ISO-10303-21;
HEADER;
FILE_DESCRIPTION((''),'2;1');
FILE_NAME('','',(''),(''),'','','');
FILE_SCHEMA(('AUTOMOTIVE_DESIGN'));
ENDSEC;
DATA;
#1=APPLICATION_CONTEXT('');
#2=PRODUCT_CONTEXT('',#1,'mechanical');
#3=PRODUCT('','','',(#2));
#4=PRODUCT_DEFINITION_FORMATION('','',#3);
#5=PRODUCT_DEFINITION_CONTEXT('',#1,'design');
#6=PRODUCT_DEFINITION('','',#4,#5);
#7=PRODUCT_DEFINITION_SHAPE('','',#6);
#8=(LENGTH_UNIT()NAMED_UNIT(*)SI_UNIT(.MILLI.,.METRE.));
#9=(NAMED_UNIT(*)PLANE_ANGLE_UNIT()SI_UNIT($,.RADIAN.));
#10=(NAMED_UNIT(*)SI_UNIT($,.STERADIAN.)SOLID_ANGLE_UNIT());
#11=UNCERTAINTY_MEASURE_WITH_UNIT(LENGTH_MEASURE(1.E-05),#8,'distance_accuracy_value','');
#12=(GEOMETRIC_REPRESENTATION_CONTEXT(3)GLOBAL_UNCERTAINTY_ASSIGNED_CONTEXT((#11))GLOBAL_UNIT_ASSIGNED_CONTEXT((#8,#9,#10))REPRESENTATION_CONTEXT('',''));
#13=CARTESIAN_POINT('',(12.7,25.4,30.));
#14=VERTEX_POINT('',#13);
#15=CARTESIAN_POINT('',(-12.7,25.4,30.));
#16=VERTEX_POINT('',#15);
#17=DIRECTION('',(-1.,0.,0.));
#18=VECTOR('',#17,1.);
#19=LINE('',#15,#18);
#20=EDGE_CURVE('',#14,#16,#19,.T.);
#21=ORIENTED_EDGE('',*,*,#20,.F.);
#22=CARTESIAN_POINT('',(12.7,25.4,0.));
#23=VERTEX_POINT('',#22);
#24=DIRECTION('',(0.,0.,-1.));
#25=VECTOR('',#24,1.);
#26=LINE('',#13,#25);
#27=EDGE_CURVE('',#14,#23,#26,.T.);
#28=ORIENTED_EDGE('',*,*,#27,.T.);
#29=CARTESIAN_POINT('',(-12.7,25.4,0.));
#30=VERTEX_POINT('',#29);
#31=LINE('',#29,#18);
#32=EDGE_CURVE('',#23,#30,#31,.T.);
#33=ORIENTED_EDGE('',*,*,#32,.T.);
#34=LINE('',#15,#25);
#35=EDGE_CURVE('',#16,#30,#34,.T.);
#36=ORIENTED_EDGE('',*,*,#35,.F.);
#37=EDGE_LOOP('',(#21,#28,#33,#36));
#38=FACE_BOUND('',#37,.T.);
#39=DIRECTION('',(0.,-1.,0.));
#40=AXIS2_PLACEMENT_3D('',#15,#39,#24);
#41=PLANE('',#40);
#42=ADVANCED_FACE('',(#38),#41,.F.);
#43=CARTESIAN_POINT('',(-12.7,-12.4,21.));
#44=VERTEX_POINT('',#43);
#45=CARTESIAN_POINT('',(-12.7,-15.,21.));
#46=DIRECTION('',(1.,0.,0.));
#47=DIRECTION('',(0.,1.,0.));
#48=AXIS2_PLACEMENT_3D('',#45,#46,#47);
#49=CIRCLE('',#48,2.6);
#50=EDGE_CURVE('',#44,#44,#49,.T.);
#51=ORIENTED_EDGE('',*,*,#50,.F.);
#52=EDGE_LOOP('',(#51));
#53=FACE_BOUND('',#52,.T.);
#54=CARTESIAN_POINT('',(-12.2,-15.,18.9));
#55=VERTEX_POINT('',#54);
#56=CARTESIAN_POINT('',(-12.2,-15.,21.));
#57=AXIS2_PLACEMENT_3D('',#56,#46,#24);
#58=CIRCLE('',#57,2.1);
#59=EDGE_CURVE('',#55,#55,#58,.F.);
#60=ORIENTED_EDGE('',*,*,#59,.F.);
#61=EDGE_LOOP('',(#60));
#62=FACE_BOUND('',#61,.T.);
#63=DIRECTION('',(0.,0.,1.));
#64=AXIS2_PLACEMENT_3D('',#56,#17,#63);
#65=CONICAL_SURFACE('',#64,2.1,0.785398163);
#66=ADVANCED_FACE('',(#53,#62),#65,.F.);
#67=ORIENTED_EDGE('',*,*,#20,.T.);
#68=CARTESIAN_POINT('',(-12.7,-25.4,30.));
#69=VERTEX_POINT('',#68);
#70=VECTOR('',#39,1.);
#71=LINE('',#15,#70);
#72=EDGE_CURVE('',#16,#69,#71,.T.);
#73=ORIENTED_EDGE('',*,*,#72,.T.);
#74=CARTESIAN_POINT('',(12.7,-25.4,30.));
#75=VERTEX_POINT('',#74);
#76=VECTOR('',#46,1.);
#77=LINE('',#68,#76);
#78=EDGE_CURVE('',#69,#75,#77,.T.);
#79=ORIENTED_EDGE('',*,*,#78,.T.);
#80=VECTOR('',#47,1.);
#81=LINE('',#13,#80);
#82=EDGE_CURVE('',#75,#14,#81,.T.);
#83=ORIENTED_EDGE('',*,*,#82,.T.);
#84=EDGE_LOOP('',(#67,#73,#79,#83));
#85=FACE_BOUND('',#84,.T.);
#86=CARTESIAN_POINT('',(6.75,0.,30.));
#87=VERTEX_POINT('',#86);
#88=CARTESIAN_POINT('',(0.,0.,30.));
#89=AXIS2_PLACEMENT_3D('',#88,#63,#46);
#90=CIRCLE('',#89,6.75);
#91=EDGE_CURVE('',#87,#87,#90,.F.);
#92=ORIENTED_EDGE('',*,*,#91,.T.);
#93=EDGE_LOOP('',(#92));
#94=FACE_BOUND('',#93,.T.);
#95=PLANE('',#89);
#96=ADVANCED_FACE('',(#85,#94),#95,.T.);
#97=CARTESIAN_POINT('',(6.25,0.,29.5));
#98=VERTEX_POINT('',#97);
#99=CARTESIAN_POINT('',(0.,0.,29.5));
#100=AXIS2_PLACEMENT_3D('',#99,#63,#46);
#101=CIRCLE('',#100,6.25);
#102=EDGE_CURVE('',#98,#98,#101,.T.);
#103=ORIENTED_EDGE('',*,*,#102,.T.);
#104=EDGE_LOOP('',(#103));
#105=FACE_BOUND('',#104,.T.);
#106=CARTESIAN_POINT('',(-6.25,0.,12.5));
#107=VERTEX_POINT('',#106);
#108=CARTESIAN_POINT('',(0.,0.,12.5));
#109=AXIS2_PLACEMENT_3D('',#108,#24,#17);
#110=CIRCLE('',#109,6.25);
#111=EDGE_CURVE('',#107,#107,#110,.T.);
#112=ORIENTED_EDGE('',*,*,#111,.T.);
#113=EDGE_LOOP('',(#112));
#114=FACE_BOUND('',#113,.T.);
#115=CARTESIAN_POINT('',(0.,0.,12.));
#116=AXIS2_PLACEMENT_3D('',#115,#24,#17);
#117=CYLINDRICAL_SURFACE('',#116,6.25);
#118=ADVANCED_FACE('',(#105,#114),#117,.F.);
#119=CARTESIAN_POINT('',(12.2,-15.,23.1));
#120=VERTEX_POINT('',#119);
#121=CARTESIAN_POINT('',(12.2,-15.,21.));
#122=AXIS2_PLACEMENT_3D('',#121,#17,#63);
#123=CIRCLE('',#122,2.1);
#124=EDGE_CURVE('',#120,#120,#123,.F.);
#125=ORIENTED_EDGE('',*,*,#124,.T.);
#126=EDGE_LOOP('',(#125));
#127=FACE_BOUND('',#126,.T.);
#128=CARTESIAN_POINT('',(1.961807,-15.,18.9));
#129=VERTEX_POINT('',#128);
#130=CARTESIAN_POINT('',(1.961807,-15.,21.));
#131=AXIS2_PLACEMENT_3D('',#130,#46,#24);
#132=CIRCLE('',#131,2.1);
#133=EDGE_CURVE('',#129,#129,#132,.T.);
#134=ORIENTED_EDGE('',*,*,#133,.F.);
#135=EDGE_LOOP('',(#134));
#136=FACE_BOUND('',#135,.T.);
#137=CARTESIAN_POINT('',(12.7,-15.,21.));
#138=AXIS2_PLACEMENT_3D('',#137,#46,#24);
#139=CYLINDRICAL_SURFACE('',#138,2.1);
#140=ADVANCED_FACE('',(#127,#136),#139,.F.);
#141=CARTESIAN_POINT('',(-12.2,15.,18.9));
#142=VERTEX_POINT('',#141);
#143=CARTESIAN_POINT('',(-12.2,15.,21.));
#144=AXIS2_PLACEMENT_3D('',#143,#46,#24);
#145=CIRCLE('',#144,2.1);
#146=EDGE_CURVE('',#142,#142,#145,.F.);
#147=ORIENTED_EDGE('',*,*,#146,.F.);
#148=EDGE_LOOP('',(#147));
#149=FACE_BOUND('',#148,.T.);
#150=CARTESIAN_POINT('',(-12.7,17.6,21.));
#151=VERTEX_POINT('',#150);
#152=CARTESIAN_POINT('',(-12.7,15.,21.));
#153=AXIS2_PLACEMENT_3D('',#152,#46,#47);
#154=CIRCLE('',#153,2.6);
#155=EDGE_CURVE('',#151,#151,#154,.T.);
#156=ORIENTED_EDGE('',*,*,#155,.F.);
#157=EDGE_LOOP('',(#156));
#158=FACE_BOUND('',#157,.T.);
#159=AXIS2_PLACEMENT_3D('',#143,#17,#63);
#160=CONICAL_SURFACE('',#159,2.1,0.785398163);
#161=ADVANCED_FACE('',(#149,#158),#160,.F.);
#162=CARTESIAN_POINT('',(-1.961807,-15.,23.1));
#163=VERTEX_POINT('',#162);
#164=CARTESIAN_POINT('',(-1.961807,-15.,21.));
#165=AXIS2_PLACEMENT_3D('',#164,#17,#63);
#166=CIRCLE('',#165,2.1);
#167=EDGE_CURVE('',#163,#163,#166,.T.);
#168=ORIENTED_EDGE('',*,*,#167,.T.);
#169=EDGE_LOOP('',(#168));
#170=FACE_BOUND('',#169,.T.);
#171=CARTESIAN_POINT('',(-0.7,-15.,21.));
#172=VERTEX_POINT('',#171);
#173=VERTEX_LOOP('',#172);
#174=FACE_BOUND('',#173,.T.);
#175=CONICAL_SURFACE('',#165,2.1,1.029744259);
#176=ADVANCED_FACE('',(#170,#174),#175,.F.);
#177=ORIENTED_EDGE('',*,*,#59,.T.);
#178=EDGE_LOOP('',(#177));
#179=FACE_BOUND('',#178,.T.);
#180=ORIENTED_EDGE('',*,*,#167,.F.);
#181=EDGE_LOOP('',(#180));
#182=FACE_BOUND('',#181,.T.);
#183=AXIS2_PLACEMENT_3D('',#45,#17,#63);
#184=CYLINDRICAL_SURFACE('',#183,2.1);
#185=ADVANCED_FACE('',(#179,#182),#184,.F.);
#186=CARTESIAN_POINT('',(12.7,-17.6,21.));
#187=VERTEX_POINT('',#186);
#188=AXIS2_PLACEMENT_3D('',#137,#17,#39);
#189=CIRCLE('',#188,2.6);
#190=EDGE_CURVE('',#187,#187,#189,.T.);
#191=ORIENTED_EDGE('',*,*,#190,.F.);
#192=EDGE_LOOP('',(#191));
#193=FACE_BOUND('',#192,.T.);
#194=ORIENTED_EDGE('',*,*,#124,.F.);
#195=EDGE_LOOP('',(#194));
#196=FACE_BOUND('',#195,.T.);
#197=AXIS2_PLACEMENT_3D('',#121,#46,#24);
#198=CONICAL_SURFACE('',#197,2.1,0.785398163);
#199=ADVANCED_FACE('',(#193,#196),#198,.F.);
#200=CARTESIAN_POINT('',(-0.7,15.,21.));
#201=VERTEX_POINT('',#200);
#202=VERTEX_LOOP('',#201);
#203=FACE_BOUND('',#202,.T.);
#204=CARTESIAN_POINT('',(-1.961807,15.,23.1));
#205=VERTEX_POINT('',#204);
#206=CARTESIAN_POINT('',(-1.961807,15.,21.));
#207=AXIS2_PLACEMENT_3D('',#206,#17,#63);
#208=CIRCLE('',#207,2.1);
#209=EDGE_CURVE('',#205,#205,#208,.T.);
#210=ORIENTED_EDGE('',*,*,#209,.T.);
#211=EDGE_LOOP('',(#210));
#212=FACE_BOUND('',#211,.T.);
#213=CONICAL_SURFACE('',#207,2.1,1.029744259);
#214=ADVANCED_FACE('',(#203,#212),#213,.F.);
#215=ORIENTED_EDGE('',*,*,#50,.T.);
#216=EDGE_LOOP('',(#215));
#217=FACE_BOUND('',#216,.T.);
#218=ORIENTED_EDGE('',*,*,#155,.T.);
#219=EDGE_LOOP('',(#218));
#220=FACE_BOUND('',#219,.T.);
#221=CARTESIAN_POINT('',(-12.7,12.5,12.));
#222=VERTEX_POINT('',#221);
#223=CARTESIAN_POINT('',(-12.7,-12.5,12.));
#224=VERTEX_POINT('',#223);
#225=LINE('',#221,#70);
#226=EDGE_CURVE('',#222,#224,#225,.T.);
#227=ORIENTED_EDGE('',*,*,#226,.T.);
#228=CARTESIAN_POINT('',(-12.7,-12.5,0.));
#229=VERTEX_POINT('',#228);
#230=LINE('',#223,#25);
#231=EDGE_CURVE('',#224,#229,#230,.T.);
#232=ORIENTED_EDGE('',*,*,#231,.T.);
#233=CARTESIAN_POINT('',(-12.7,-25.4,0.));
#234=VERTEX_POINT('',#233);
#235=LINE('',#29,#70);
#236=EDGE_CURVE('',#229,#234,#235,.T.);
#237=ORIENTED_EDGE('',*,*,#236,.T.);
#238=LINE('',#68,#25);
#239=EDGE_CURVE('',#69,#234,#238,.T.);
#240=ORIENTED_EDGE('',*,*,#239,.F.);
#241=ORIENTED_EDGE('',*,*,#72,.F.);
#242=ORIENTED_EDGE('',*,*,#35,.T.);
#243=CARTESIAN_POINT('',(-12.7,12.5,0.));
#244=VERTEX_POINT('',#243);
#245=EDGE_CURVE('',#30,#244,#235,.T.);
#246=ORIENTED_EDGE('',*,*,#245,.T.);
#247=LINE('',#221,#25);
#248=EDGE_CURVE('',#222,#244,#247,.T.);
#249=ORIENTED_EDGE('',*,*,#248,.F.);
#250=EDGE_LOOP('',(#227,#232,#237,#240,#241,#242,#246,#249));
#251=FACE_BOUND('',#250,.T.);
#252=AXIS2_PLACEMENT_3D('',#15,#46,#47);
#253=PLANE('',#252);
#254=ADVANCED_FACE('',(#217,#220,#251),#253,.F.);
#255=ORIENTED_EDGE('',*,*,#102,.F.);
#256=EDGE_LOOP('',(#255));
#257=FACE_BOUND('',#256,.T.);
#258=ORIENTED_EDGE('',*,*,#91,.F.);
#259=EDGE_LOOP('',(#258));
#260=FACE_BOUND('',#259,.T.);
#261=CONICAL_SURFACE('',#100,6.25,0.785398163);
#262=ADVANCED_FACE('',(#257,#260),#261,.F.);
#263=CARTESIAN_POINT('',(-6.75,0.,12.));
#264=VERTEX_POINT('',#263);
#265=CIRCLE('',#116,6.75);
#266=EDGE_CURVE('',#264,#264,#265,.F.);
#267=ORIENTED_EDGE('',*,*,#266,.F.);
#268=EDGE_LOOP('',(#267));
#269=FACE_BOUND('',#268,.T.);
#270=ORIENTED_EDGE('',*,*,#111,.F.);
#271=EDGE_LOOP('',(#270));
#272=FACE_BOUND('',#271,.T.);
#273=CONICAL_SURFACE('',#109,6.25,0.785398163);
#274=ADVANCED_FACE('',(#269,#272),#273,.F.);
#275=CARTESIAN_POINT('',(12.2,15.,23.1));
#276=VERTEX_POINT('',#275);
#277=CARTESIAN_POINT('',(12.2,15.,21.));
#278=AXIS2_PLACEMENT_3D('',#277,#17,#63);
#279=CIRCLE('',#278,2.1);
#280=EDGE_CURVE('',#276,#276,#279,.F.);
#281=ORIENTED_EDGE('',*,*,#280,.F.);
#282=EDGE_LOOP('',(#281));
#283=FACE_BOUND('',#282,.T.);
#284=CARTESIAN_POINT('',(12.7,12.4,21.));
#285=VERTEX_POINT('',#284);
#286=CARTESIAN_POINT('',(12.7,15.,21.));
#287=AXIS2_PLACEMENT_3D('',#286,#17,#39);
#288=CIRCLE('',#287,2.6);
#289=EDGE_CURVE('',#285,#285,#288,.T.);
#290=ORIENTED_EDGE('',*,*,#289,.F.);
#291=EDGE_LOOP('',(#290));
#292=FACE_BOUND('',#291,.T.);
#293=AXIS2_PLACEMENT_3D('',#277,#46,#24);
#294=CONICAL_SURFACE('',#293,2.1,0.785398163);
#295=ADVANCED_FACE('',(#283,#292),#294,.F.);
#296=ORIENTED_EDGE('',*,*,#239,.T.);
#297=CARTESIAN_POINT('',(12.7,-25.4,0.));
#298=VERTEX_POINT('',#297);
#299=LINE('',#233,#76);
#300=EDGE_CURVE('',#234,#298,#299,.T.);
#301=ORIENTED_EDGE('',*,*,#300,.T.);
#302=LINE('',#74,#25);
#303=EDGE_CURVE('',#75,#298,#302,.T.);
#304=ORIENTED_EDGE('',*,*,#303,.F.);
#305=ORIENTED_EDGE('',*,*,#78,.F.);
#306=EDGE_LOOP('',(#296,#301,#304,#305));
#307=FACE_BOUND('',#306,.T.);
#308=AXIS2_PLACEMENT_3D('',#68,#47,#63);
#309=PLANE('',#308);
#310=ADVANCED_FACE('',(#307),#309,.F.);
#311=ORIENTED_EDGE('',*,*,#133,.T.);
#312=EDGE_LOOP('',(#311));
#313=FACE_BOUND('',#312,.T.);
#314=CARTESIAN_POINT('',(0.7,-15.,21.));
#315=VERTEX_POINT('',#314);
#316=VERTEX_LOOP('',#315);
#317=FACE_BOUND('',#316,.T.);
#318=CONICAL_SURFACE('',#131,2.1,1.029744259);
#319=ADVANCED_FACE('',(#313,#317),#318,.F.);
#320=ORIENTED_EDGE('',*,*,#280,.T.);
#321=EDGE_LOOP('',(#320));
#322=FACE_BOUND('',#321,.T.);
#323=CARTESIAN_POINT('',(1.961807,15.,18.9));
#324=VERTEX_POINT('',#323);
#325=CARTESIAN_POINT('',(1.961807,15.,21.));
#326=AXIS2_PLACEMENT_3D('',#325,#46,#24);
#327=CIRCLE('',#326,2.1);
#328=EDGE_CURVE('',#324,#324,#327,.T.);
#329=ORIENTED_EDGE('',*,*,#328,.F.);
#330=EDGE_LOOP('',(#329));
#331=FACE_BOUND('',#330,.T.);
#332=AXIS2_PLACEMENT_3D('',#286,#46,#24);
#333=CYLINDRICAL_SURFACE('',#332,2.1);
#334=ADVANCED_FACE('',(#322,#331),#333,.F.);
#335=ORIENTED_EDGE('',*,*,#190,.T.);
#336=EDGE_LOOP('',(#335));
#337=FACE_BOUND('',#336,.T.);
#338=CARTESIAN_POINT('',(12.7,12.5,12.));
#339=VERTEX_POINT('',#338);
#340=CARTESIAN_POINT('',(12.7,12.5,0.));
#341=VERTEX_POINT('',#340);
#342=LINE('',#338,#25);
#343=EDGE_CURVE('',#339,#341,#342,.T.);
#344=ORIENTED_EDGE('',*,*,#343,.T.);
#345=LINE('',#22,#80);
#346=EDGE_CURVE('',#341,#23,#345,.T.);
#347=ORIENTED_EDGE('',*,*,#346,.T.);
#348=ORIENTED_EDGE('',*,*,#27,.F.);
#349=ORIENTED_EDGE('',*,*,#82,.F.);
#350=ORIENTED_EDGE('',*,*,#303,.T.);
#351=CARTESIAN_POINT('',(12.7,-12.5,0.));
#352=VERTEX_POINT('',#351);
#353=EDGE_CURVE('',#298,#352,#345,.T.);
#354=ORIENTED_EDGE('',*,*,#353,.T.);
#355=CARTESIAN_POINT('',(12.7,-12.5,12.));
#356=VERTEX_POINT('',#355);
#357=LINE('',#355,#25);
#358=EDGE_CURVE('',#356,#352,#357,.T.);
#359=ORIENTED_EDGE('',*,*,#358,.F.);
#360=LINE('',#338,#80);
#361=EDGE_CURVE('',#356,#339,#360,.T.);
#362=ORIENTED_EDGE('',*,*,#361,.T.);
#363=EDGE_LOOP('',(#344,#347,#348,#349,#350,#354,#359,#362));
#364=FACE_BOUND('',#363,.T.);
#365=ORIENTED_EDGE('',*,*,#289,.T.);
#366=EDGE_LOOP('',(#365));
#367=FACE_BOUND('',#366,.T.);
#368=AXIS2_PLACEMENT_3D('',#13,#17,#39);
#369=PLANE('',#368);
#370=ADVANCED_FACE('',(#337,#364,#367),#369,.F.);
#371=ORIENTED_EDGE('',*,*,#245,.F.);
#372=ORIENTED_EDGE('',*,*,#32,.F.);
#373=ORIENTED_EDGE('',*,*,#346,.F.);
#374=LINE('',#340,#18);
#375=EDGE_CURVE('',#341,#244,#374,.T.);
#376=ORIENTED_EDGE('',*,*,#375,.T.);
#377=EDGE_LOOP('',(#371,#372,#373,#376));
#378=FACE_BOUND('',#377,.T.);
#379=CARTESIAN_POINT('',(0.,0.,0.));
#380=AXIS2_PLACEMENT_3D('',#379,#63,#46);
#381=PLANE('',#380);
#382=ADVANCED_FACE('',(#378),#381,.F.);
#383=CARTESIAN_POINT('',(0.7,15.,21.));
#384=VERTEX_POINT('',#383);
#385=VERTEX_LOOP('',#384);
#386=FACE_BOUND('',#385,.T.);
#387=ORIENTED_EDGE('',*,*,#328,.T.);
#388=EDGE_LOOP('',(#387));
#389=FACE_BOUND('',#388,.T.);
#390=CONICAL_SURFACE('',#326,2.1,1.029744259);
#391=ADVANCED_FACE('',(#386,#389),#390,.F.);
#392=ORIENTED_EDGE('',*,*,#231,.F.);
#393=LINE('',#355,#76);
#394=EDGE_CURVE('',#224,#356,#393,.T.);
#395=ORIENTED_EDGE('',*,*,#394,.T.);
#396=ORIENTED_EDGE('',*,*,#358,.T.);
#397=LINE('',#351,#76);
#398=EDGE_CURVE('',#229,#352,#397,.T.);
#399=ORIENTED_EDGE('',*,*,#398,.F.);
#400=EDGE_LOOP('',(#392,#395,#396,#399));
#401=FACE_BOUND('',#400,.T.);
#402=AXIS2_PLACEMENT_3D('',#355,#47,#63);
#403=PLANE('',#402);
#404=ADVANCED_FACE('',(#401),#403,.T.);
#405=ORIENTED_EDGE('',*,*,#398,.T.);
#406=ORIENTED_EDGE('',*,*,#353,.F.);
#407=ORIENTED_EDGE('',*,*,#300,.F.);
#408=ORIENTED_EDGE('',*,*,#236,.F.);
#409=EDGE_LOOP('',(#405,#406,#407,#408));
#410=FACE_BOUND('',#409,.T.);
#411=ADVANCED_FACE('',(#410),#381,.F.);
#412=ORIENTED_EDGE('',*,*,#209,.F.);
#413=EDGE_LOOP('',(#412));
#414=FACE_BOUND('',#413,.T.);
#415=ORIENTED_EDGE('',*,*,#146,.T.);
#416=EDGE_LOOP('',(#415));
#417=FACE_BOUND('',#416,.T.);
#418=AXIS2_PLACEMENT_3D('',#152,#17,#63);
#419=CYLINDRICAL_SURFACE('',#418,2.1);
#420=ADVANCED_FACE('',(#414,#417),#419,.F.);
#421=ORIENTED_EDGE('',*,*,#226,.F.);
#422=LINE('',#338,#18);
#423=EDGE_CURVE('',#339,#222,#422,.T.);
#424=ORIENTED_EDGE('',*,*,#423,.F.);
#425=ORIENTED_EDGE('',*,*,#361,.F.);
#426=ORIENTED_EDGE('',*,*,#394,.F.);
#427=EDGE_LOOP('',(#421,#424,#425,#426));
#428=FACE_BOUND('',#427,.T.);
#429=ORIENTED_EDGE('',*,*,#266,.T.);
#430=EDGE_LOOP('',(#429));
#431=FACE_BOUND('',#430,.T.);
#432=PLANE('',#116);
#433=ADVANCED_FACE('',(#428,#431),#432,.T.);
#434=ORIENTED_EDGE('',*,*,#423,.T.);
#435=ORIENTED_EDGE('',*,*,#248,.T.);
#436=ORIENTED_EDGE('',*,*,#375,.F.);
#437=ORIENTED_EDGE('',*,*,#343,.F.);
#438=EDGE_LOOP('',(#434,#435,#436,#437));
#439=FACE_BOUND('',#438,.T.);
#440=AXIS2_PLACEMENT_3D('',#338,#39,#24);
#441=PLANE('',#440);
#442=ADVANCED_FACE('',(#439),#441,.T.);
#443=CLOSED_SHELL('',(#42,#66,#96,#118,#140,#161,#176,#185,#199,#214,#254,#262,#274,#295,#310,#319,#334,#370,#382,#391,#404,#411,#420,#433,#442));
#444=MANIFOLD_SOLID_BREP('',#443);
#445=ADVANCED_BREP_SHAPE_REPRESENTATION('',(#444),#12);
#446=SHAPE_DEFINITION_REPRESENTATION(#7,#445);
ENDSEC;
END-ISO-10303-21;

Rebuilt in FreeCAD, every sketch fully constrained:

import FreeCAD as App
import Part
import Sketcher
Q = App.Units.Quantity


def edges_at(feature, points):
    """Names of the edges that pass closest to the given points."""
    edges = feature.Shape.Edges
    near = lambda p: min(range(len(edges)), key=lambda i: edges[i].distToShape(Part.Vertex(*p))[0])
    return sorted({f"Edge{near(p) + 1}" for p in points})


def add_polygon(sketch, points):
    """Adds a closed chain of lines whose ends are joined by coincident constraints."""
    first, n = sketch.GeometryCount, len(points)
    for a, b in zip(points, points[1:] + points[:1]):
        sketch.addGeometry(Part.LineSegment(App.Vector(*a, 0), App.Vector(*b, 0)), False)
    for i in range(n):
        sketch.addConstraint(Sketcher.Constraint("Coincident", first + i, 2, first + (i + 1) % n, 1))

doc = App.newDocument("Part")
body = doc.addObject("PartDesign::Body", "Body")

# Sketch on XY plane
sketch1 = body.newObject("Sketcher::SketchObject", "Sketch")
sketch1.AttachmentSupport = (doc.getObject("XY_Plane"), [""])
sketch1.MapMode = "FlatFace"
add_polygon(sketch1, [(-13, 25), (-13, -25), (13, -25), (13, 25)])  # lines 0-3
sketch1.addConstraint([
    Sketcher.Constraint("Vertical", 0),
    Sketcher.Constraint("Horizontal", 1),
    Sketcher.Constraint("Vertical", 2),
    Sketcher.Constraint("Horizontal", 3),
    Sketcher.Constraint("Symmetric", 0, 2, 2, 2, -1, 1),
    Sketcher.Constraint("DistanceX", 1, 1, 1, 2, 25.4),
    Sketcher.Constraint("DistanceY", 0, 2, 0, 1, 50.8),
])
pad1 = body.newObject("PartDesign::Pad", "Pad")
pad1.Profile = sketch1
pad1.Length = 30

# Sketch on XY plane
sketch2 = body.newObject("Sketcher::SketchObject", "Sketch001")
sketch2.AttachmentSupport = (doc.getObject("XY_Plane"), [""])
sketch2.MapMode = "FlatFace"
add_polygon(sketch2, [(-13, 12), (-13, -12), (13, -12), (13, 12)])  # lines 0-3
sketch2.addConstraint([
    Sketcher.Constraint("Vertical", 0),
    Sketcher.Constraint("Horizontal", 1),
    Sketcher.Constraint("Vertical", 2),
    Sketcher.Constraint("Horizontal", 3),
    Sketcher.Constraint("Symmetric", 0, 2, 2, 2, -1, 1),
    Sketcher.Constraint("DistanceY", 0, 2, 0, 1, 25.0),
    Sketcher.Constraint("DistanceX", 1, 1, 1, 2, 25.4),
])
pocket1 = body.newObject("PartDesign::Pocket", "Pocket")
pocket1.Profile = sketch2
pocket1.Length = 12
pocket1.Reversed = True

# Sketch on XY plane
sketch3 = body.newObject("Sketcher::SketchObject", "Sketch002")
sketch3.AttachmentSupport = (doc.getObject("XY_Plane"), [""])
sketch3.MapMode = "FlatFace"
sketch3.AttachmentOffset = App.Placement(App.Vector(0, 0, 12), App.Rotation())
sketch3.addGeometry(Part.Circle(App.Vector(0, 0, 0), App.Vector(0, 0, 1), 6), False)
sketch3.addConstraint([
    Sketcher.Constraint("Coincident", 0, 3, -1, 1),
    Sketcher.Constraint("Diameter", 0, 12.5),
])
doc.recompute()
hole = body.newObject("PartDesign::Hole", "Hole")
hole.Profile = sketch3
hole.ThreadType = "None"
hole.Diameter = 12.5
hole.DepthType = "ThroughAll"
hole.Reversed = True

# Sketch on XZ plane
sketch4 = body.newObject("Sketcher::SketchObject", "Sketch003")
sketch4.AttachmentSupport = (doc.getObject("XZ_Plane"), [""])
sketch4.MapMode = "FlatFace"
sketch4.AttachmentOffset = App.Placement(App.Vector(0, 0, -15), App.Rotation())
add_polygon(sketch4, [(0.7, 21), (12.7, 21), (12.7, 18.9), (2, 18.9)])  # lines 0-3
sketch4.addGeometry(Part.LineSegment(App.Vector(12.7, 21, 0), App.Vector(0.7, 21, 0)), True)  # axis
sketch4.addConstraint([
    Sketcher.Constraint("Horizontal", 0),
    Sketcher.Constraint("Vertical", 1),
    Sketcher.Constraint("Horizontal", 2),
    Sketcher.Constraint("Horizontal", 4),
    Sketcher.Constraint("Coincident", 4, 1, 0, 2),
    Sketcher.Constraint("Equal", 0, 4),
    Sketcher.Constraint("DistanceX", 0, 1, 0, 2, 12.0),
    Sketcher.Constraint("Angle", 3, Q("121 deg")),
    Sketcher.Constraint("DistanceY", 1, 2, 1, 1, 2.1),
    Sketcher.Constraint("DistanceY", -1, 1, 0, 2, 21.0),
    Sketcher.Constraint("DistanceX", -1, 1, 0, 2, 12.7),
])
groove = body.newObject("PartDesign::Groove", "Groove")
groove.Profile = sketch4
groove.ReferenceAxis = (sketch4, ["Axis0"])
groove.Angle = 360
doc.recompute()

linearpattern = body.newObject("PartDesign::LinearPattern", "LinearPattern")
linearpattern.Originals = [groove]
linearpattern.Direction = (doc.getObject("Y_Axis"), [""])
linearpattern.Mode = "offset"
linearpattern.Offset = 30
linearpattern.Occurrences = 2
linearpattern.Reversed = True
body.Tip = linearpattern
doc.recompute()

mirrored = body.newObject("PartDesign::Mirrored", "Mirrored")
mirrored.Originals = [groove]
mirrored.MirrorPlane = (doc.getObject("YZ_Plane"), [""])
body.Tip = mirrored

# Sketch on XZ plane
sketch5 = body.newObject("Sketcher::SketchObject", "Sketch004")
sketch5.AttachmentSupport = (doc.getObject("XZ_Plane"), [""])
sketch5.MapMode = "FlatFace"
sketch5.AttachmentOffset = App.Placement(App.Vector(0, 0, 15), App.Rotation())
add_polygon(sketch5, [(-12.7, 21), (-0.7, 21), (-2, 18.9), (-12.7, 18.9)])  # lines 0-3
sketch5.addGeometry(Part.LineSegment(App.Vector(-0.7, 21, 0), App.Vector(-12.7, 21, 0)), True)  # axis
sketch5.addConstraint([
    Sketcher.Constraint("Horizontal", 0),
    Sketcher.Constraint("Horizontal", 2),
    Sketcher.Constraint("Vertical", 3),
    Sketcher.Constraint("Horizontal", 4),
    Sketcher.Constraint("Coincident", 4, 1, 0, 2),
    Sketcher.Constraint("Vertical", 2, 2, 4, 2),
    Sketcher.Constraint("DistanceX", 0, 1, 0, 2, 12.0),
    Sketcher.Constraint("Angle", 1, Q("-121 deg")),
    Sketcher.Constraint("DistanceY", 3, 1, 3, 2, 2.1),
    Sketcher.Constraint("DistanceY", -1, 1, 0, 2, 21.0),
    Sketcher.Constraint("DistanceX", 0, 2, -1, 1, 0.7),
])
groove2 = body.newObject("PartDesign::Groove", "Groove001")
groove2.Profile = sketch5
groove2.ReferenceAxis = (sketch5, ["Axis0"])
groove2.Angle = 360
doc.recompute()

chamfer = body.newObject("PartDesign::Chamfer", "Chamfer")
chamfer.Base = (groove2, edges_at(groove2, [
    (-6.25, 0, 12),
    (-6.25, 0, 30),
    (12.7, -15, 23.1),
    (12.7, 15, 23.1),
    (-12.7, -15, 23.1),
    (-12.7, 15, 23.1),
]))
chamfer.Size = 0.5

doc.recompute()
